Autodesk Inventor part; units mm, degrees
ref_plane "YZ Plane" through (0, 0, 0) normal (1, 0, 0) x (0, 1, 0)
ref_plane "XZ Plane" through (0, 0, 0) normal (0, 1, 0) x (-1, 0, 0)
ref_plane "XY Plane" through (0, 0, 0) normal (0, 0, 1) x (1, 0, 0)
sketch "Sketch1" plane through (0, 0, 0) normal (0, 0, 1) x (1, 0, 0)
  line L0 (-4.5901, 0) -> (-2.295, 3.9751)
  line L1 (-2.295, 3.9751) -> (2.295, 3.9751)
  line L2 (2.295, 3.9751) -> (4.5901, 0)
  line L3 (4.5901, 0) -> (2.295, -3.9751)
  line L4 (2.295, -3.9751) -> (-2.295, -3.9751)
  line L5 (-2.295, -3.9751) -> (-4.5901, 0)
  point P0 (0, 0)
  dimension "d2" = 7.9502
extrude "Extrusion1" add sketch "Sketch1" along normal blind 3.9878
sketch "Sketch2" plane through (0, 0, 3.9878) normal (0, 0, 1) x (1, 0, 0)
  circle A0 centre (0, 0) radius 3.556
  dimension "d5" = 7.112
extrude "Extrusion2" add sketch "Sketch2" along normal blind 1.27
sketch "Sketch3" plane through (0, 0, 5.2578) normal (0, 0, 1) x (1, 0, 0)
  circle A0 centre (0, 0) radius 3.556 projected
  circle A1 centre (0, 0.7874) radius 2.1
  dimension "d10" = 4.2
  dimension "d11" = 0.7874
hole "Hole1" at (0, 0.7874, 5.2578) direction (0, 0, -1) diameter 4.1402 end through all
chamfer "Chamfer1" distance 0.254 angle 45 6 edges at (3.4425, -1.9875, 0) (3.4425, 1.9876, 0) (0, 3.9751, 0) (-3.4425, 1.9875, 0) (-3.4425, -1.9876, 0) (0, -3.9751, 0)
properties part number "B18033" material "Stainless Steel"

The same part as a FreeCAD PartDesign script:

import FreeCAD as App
import Part
import Sketcher
from FreeCAD import Vector
Q = App.Units.Quantity


def edges_at(feature, points):
    """Names of the edges that pass closest to the given points."""
    edges = feature.Shape.Edges
    near = lambda p: min(range(len(edges)), key=lambda i: edges[i].distToShape(Part.Vertex(*p))[0])
    return sorted({f"Edge{near(p) + 1}" for p in points})


def add_polygon(sketch, points):
    """Adds a closed chain of lines whose ends are joined by coincident constraints."""
    first, n = sketch.GeometryCount, len(points)
    for a, b in zip(points, points[1:] + points[:1]):
        sketch.addGeometry(Part.LineSegment(App.Vector(*a, 0), App.Vector(*b, 0)), False)
    for i in range(n):
        sketch.addConstraint(Sketcher.Constraint("Coincident", first + i, 2, first + (i + 1) % n, 1))

doc = App.newDocument("Part")
params = doc.addObject("Spreadsheet::Sheet", "Params")
for row, (alias, value) in enumerate([
    ("pad1_length", "0.157 in"),
    ("sketch2_diameter", "0.28 in"),
    ("pad2_length", "0.05 in"),
    ("sketch3_diameter", "0.163 in"),
    ("hole_diameter", "0.163 in"),
    ("chamfer_size", "0.01 in"),
], start=1):
    params.set(f"A{row}", alias)
    params.set(f"B{row}", "=" + value)
    params.setAlias(f"B{row}", alias)

body = doc.addObject("PartDesign::Body", "Body")

# Sketch on XY plane
sketch1 = body.newObject("Sketcher::SketchObject", "Sketch")
sketch1.AttachmentSupport = (doc.getObject("XY_Plane"), [""])
sketch1.MapMode = "FlatFace"
add_polygon(sketch1, [(-2.3, 4), (-4.6, 0), (-2.3, -4), (2.3, -4), (4.6, 0), (2.3, 4)])  # lines 0-5
sketch1.addConstraint(Sketcher.Constraint("Horizontal", 2))
sketch1.addConstraint(Sketcher.Constraint("Horizontal", 5))
sketch1.addConstraint(Sketcher.Constraint("Symmetric", 0, 2, 3, 2, -1, 1))
sketch1.addConstraint(Sketcher.Constraint("Symmetric", 1, 2, 4, 2, -1, 1))
sketch1.addConstraint(Sketcher.Constraint("PointOnObject", 0, 2, -1))
sketch1.addConstraint(Sketcher.Constraint("Parallel", 0, 3))
sketch1.addConstraint(Sketcher.Constraint("Vertical", 2, 2, 4, 2))
sketch1.addConstraint(Sketcher.Constraint("Angle", 0, Q("-120.0008 deg")))
sketch1.addConstraint(Sketcher.Constraint("DistanceY", 2, 2, 4, 2, Q("0.313 in")))
sketch1.addConstraint(Sketcher.Constraint("DistanceX", 2, 1, 2, 2, Q("0.1807 in")))
pad1 = body.newObject("PartDesign::Pad", "Pad")
pad1.Profile = sketch1
pad1.setExpression("Length", "Params.pad1_length")

# Sketch on XY plane
sketch2 = body.newObject("Sketcher::SketchObject", "Sketch001")
sketch2.AttachmentSupport = (doc.getObject("XY_Plane"), [""])
sketch2.MapMode = "FlatFace"
sketch2.AttachmentOffset = App.Placement(Vector(0, 0, 0.157 * 25.4), App.Rotation())
sketch2.addGeometry(Part.Circle(Vector(0, 0, 0), Vector(0, 0, 1), 3.6), False)
sketch2.addConstraint(Sketcher.Constraint("Coincident", 0, 3, -1, 1))
sketch2.addConstraint(Sketcher.Constraint("Diameter", 0, Q("0.28 in")))
sketch2.setExpression("Constraints[1]", "Params.sketch2_diameter")
pad2 = body.newObject("PartDesign::Pad", "Pad001")
pad2.Profile = sketch2
pad2.setExpression("Length", "Params.pad2_length")

# Sketch on XY plane
sketch3 = body.newObject("Sketcher::SketchObject", "Sketch002")
sketch3.AttachmentSupport = (doc.getObject("XY_Plane"), [""])
sketch3.MapMode = "FlatFace"
sketch3.AttachmentOffset = App.Placement(Vector(0, 0, 0.207 * 25.4), App.Rotation())
sketch3.addGeometry(Part.Circle(Vector(0, 0.8, 0), Vector(0, 0, 1), 2.1), False)
sketch3.addConstraint(Sketcher.Constraint("PointOnObject", 0, 3, -2))
sketch3.addConstraint(Sketcher.Constraint("Diameter", 0, Q("0.163 in")))
sketch3.addConstraint(Sketcher.Constraint("DistanceY", -1, 1, 0, 3, Q("0.031 in")))
sketch3.setExpression("Constraints[1]", "Params.sketch3_diameter")
doc.recompute()
hole = body.newObject("PartDesign::Hole", "Hole")
hole.Profile = sketch3
hole.ThreadType = "None"
hole.setExpression("Diameter", "Params.hole_diameter")
hole.DepthType = "ThroughAll"
doc.recompute()

chamfer = body.newObject("PartDesign::Chamfer", "Chamfer")
chamfer.Base = (hole, edges_at(hole, [
    (3.442, -1.988, 0),
    (3.442, 1.988, 0),
    (0, 3.975, 0),
    (-3.442, 1.988, 0),
    (-3.442, -1.988, 0),
    (0, -3.975, 0),
]))
chamfer.setExpression("Size", "Params.chamfer_size")

doc.recompute()
